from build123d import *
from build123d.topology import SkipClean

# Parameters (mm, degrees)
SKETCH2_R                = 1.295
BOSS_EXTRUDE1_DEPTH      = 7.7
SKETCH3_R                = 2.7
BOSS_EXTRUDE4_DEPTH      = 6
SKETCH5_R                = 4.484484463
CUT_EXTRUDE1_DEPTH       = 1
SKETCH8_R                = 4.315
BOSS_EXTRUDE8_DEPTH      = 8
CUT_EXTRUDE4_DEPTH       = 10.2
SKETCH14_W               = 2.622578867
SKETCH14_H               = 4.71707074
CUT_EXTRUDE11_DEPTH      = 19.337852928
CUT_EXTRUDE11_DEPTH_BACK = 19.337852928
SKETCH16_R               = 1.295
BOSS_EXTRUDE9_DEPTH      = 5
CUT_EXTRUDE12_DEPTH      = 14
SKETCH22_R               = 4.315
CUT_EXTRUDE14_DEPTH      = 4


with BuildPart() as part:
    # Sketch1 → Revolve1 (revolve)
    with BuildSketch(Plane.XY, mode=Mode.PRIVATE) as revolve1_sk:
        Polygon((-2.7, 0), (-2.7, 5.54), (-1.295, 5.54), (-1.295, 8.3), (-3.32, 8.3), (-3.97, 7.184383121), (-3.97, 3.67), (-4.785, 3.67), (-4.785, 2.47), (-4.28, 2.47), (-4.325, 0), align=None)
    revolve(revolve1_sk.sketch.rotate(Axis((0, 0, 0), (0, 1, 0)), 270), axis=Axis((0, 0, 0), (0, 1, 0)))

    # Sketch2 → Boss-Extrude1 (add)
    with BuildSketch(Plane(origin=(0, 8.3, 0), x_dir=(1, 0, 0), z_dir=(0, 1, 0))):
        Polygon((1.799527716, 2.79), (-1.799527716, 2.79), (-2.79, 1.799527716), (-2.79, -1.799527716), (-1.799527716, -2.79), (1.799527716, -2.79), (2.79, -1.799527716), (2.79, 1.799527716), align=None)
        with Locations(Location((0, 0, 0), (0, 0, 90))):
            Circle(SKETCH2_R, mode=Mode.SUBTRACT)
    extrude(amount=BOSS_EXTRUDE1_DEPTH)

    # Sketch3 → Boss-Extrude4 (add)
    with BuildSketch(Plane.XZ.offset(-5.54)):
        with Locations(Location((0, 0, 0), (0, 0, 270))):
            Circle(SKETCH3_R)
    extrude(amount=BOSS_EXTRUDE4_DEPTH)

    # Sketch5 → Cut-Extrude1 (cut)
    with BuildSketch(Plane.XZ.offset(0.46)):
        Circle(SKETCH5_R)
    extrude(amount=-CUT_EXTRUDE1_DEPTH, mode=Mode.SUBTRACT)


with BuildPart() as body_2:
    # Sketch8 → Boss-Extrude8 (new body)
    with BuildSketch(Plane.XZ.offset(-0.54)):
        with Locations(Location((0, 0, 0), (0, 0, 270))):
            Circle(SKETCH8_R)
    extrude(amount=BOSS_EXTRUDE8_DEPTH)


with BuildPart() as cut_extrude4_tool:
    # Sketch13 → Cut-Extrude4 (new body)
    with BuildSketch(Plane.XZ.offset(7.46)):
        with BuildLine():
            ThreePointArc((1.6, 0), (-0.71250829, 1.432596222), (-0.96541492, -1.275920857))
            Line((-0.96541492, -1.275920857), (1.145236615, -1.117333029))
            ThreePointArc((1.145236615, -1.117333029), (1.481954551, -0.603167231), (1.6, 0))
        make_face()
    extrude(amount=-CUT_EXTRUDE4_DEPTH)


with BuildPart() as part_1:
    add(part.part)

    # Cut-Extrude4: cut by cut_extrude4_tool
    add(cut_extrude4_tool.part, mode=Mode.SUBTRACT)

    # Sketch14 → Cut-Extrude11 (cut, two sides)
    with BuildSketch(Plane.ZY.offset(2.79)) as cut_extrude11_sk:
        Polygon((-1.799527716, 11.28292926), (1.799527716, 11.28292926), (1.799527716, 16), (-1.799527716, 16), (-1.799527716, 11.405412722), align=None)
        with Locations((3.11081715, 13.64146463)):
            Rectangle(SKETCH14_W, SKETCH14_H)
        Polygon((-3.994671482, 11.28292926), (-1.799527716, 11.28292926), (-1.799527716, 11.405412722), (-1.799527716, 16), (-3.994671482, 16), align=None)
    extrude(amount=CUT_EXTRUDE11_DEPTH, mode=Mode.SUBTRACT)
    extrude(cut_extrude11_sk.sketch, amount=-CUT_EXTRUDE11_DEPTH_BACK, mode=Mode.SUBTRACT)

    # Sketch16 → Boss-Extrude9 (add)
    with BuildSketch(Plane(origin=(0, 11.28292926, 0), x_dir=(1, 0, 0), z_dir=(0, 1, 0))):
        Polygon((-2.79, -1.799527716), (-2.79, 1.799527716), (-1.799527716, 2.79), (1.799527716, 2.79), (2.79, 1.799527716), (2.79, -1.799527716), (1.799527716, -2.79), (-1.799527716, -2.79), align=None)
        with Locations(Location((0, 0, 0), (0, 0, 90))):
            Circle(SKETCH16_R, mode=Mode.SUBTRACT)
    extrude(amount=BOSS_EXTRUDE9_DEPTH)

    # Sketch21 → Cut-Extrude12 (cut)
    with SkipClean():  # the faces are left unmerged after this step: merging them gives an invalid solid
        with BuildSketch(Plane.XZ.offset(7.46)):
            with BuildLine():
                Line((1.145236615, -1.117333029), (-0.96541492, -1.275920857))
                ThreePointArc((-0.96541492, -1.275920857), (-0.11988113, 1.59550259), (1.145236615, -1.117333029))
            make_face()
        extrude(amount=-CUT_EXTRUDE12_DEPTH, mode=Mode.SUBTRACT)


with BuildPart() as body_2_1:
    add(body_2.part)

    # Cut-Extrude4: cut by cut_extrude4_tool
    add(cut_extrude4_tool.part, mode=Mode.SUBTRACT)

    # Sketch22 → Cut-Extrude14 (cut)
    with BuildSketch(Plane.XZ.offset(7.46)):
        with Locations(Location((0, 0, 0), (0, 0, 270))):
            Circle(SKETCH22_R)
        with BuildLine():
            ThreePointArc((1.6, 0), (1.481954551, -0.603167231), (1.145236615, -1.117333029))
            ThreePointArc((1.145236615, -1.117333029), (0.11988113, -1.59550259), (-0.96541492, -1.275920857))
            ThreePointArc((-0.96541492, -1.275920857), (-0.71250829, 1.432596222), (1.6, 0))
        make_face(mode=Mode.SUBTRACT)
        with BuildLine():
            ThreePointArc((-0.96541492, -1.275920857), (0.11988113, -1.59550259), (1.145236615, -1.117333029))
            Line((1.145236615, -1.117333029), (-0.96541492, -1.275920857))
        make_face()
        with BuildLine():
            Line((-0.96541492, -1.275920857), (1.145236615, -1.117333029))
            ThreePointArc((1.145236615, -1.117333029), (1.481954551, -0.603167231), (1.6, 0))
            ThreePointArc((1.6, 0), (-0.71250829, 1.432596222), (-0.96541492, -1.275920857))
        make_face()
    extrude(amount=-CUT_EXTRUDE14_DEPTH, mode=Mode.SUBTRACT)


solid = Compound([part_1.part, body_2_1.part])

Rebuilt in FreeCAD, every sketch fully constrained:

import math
import FreeCAD as App
import Part
import Sketcher
from FreeCAD import Vector
Q = App.Units.Quantity

doc = App.newDocument("Part")
body = doc.addObject("PartDesign::Body", "Body")

# Sketch on XY plane
sketch1 = body.newObject("Sketcher::SketchObject", "Sketch")
sketch1.AttachmentSupport = (doc.getObject("XY_Plane"), [""])
sketch1.MapMode = "FlatFace"
sketch1.addGeometry([
    Part.LineSegment(Vector(-2.7, 0, 0), Vector(-2.7, 5.54, 0)),  # 0
    Part.LineSegment(Vector(-2.7, 5.54, 0), Vector(-1.295, 5.54, 0)),  # 1
    Part.LineSegment(Vector(-1.295, 5.54, 0), Vector(-1.295, 8.3, 0)),  # 2
    Part.LineSegment(Vector(-1.295, 8.3, 0), Vector(-3.32, 8.3, 0)),  # 3
    Part.LineSegment(Vector(-3.32, 8.3, 0), Vector(-3.97, 7.184383, 0)),  # 4
    Part.LineSegment(Vector(-3.97, 7.184383, 0), Vector(-3.97, 3.67, 0)),  # 5
    Part.LineSegment(Vector(-3.97, 3.67, 0), Vector(-4.785, 3.67, 0)),  # 6
    Part.LineSegment(Vector(-4.785, 3.67, 0), Vector(-4.785, 2.47, 0)),  # 7
    Part.LineSegment(Vector(-4.785, 2.47, 0), Vector(-4.28, 2.47, 0)),  # 8
    Part.LineSegment(Vector(-4.28, 2.47, 0), Vector(-4.325, 0, 0)),  # 9
    Part.LineSegment(Vector(-4.325, 0, 0), Vector(-2.7, 0, 0)),  # 10
], False)
sketch1.addConstraint([
    Sketcher.Constraint("Coincident", 0, 2, 1, 1),
    Sketcher.Constraint("Coincident", 1, 2, 2, 1),
    Sketcher.Constraint("Coincident", 2, 2, 3, 1),
    Sketcher.Constraint("Coincident", 3, 2, 4, 1),
    Sketcher.Constraint("Coincident", 4, 2, 5, 1),
    Sketcher.Constraint("Coincident", 5, 2, 6, 1),
    Sketcher.Constraint("Coincident", 6, 2, 7, 1),
    Sketcher.Constraint("Coincident", 7, 2, 8, 1),
    Sketcher.Constraint("Coincident", 8, 2, 9, 1),
    Sketcher.Constraint("Coincident", 9, 2, 10, 1),
    Sketcher.Constraint("Coincident", 10, 2, 0, 1),
    Sketcher.Constraint("Vertical", 0),
    Sketcher.Constraint("Horizontal", 1),
    Sketcher.Constraint("Vertical", 2),
    Sketcher.Constraint("Horizontal", 3),
    Sketcher.Constraint("Vertical", 5),
    Sketcher.Constraint("Horizontal", 6),
    Sketcher.Constraint("Vertical", 7),
    Sketcher.Constraint("Horizontal", 8),
    Sketcher.Constraint("Horizontal", 10),
    Sketcher.Constraint("PointOnObject", 9, 2, -1),
    Sketcher.Constraint("DistanceY", 7, 2, 7, 1, Q("1.2 mm")),
    Sketcher.Constraint("DistanceY", 0, 1, 0, 2, Q("5.54 mm")),
    Sketcher.Constraint("DistanceY", 2, 1, 2, 2, Q("2.76 mm")),
    Sketcher.Constraint("DistanceX", 0, 2, -1, 1, Q("2.7 mm")),
    Sketcher.Constraint("DistanceX", 1, 1, 1, 2, Q("1.405 mm")),
    Sketcher.Constraint("DistanceX", 3, 2, 3, 1, Q("2.025 mm")),
    Sketcher.Constraint("DistanceX", 6, 2, 6, 1, Q("0.815 mm")),
    Sketcher.Constraint("DistanceX", 8, 1, 8, 2, Q("0.505 mm")),
    Sketcher.Constraint("DistanceX", 10, 1, 10, 2, Q("1.625 mm")),
    Sketcher.Constraint("DistanceX", 4, 2, -1, 1, Q("3.97 mm")),
    Sketcher.Constraint("DistanceY", -1, 1, 5, 2, Q("3.67 mm")),
    Sketcher.Constraint("DistanceY", 5, 2, 5, 1, Q("3.514383 mm")),
])
revolution = body.newObject("PartDesign::Revolution", "Revolution")
revolution.Profile = sketch1
revolution.ReferenceAxis = (sketch1, ["V_Axis"])
revolution.Angle = 360

# Sketch on XZ plane
sketch2 = body.newObject("Sketcher::SketchObject", "Sketch001")
sketch2.AttachmentSupport = (doc.getObject("XZ_Plane"), [""])
sketch2.MapMode = "FlatFace"
sketch2.AttachmentOffset = App.Placement(Vector(0, 0, -8.3), App.Rotation())
sketch2.addGeometry([
    Part.LineSegment(Vector(1.799528, -2.79, 0), Vector(-1.799528, -2.79, 0)),  # 0
    Part.LineSegment(Vector(-1.799528, -2.79, 0), Vector(-2.79, -1.799528, 0)),  # 1
    Part.LineSegment(Vector(-2.79, -1.799528, 0), Vector(-2.79, 1.799528, 0)),  # 2
    Part.LineSegment(Vector(-2.79, 1.799528, 0), Vector(-1.799528, 2.79, 0)),  # 3
    Part.LineSegment(Vector(-1.799528, 2.79, 0), Vector(1.799528, 2.79, 0)),  # 4
    Part.LineSegment(Vector(1.799528, 2.79, 0), Vector(2.79, 1.799528, 0)),  # 5
    Part.LineSegment(Vector(2.79, 1.799528, 0), Vector(2.79, -1.799528, 0)),  # 6
    Part.LineSegment(Vector(2.79, -1.799528, 0), Vector(1.799528, -2.79, 0)),  # 7
    Part.Circle(Vector(0, 0, 0), Vector(0, 0, 1), 1.295),  # 8
], False)
sketch2.addConstraint([
    Sketcher.Constraint("Coincident", 0, 2, 1, 1),
    Sketcher.Constraint("Coincident", 1, 2, 2, 1),
    Sketcher.Constraint("Coincident", 2, 2, 3, 1),
    Sketcher.Constraint("Coincident", 3, 2, 4, 1),
    Sketcher.Constraint("Coincident", 4, 2, 5, 1),
    Sketcher.Constraint("Coincident", 5, 2, 6, 1),
    Sketcher.Constraint("Coincident", 6, 2, 7, 1),
    Sketcher.Constraint("Coincident", 7, 2, 0, 1),
    Sketcher.Constraint("Horizontal", 0),
    Sketcher.Constraint("Vertical", 2),
    Sketcher.Constraint("Horizontal", 4),
    Sketcher.Constraint("Vertical", 6),
    Sketcher.Constraint("Coincident", 8, 3, -1, 1),
    Sketcher.Constraint("Symmetric", 0, 2, 4, 2, -1, 1),
    Sketcher.Constraint("Symmetric", 1, 2, 5, 2, -1, 1),
    Sketcher.Constraint("Perpendicular", 1, 3),
    Sketcher.Constraint("Perpendicular", 5, 7),
    Sketcher.Constraint("Horizontal", 2, 2, 5, 2),
    Sketcher.Constraint("Horizontal", 1, 2, 6, 2),
    Sketcher.Constraint("Vertical", 0, 2, 3, 2),
    Sketcher.Constraint("Equal", 4, 2),
    Sketcher.Constraint("Diameter", 8, Q("2.59 mm")),
    Sketcher.Constraint("DistanceY", 0, 2, -1, 1, Q("2.79 mm")),
    Sketcher.Constraint("Distance", 1, Q("1.400739 mm")),
])
pad1 = body.newObject("PartDesign::Pad", "Pad")
pad1.Profile = sketch2
pad1.Length = 7.7
pad1.Reversed = True

# Sketch on XZ plane
sketch3 = body.newObject("Sketcher::SketchObject", "Sketch002")
sketch3.AttachmentSupport = (doc.getObject("XZ_Plane"), [""])
sketch3.MapMode = "FlatFace"
sketch3.AttachmentOffset = App.Placement(Vector(0, 0, -5.54), App.Rotation())
sketch3.addGeometry(Part.Circle(Vector(0, 0, 0), Vector(0, 0, 1), 2.7), False)
sketch3.addConstraint([
    Sketcher.Constraint("Coincident", 0, 3, -1, 1),
    Sketcher.Constraint("Diameter", 0, Q("5.4 mm")),
])
pad2 = body.newObject("PartDesign::Pad", "Pad001")
pad2.Profile = sketch3
pad2.Length = 6

# Sketch on XZ plane
sketch4 = body.newObject("Sketcher::SketchObject", "Sketch003")
sketch4.AttachmentSupport = (doc.getObject("XZ_Plane"), [""])
sketch4.MapMode = "FlatFace"
sketch4.AttachmentOffset = App.Placement(Vector(0, 0, 0.46), App.Rotation())
sketch4.addGeometry(Part.Circle(Vector(0, 0, 0), Vector(0, 0, 1), 4.484484), False)
sketch4.addConstraint([
    Sketcher.Constraint("Coincident", 0, 3, -1, 1),
    Sketcher.Constraint("Diameter", 0, Q("8.968969 mm")),
])
pocket1 = body.newObject("PartDesign::Pocket", "Pocket")
pocket1.Profile = sketch4
pocket1.Length = 1
body2 = doc.addObject("PartDesign::Body", "Body001")

# Sketch on XZ plane
sketch5 = body2.newObject("Sketcher::SketchObject", "Sketch004")
sketch5.AttachmentSupport = (doc.getObject("XZ_Plane001"), [""])
sketch5.MapMode = "FlatFace"
sketch5.AttachmentOffset = App.Placement(Vector(0, 0, -0.54), App.Rotation())
sketch5.addGeometry(Part.Circle(Vector(0, 0, 0), Vector(0, 0, 1), 4.315), False)
sketch5.addConstraint([
    Sketcher.Constraint("Coincident", 0, 3, -1, 1),
    Sketcher.Constraint("Diameter", 0, Q("8.63 mm")),
])
pad3 = body2.newObject("PartDesign::Pad", "Pad002")
pad3.Profile = sketch5
pad3.Length = 8
body3 = doc.addObject("PartDesign::Body", "Body002")

# Sketch on XZ plane
sketch6 = body3.newObject("Sketcher::SketchObject", "Sketch005")
sketch6.AttachmentSupport = (doc.getObject("XZ_Plane002"), [""])
sketch6.MapMode = "FlatFace"
sketch6.AttachmentOffset = App.Placement(Vector(0, 0, 7.46), App.Rotation())
sketch6.addGeometry([
    Part.ArcOfCircle(Part.Circle(Vector(0, 0, 0), Vector(0, 0, 1), 1.6), math.radians(0), math.radians(232.887331)),
    Part.LineSegment(Vector(-0.965415, -1.275921, 0), Vector(1.145237, -1.117333, 0)),
    Part.ArcOfCircle(Part.Circle(Vector(0, 0, 0), Vector(0, 0, 1), 1.6), math.radians(-44.293424), math.radians(0)),
], False)
sketch6.addConstraint([
    Sketcher.Constraint("Coincident", 0, 2, 1, 1),
    Sketcher.Constraint("Coincident", 1, 2, 2, 1),
    Sketcher.Constraint("Tangent", 2, 2, 0, 1),
    Sketcher.Constraint("Coincident", 0, 3, -1, 1),
    Sketcher.Constraint("Equal", 0, 2),
    Sketcher.Constraint("PointOnObject", 2, 2, -1),
    Sketcher.Constraint("Radius", 0, Q("1.6 mm")),
    Sketcher.Constraint("Distance", 1, Q("2.116601 mm")),
    Sketcher.Constraint("DistanceY", 0, 2, -1, 1, Q("1.275921 mm")),
])
pad4 = body3.newObject("PartDesign::Pad", "Pad003")
pad4.Profile = sketch6
pad4.Length = 10.2
pad4.Reversed = True
doc.recompute()

body4 = doc.addObject("PartDesign::Body", "Body003")
body4.BaseFeature = body3
boolean = body.newObject("PartDesign::Boolean", "Boolean")
boolean.Type = "Cut"
boolean.addObjects([body4])
doc.recompute()

# Sketch on YZ plane
sketch7 = body.newObject("Sketcher::SketchObject", "Sketch006")
sketch7.AttachmentSupport = (doc.getObject("YZ_Plane"), [""])
sketch7.MapMode = "FlatFace"
sketch7.AttachmentOffset = App.Placement(Vector(0, 0, -2.79), App.Rotation())
sketch7.addGeometry([
    Part.LineSegment(Vector(11.282929, 4.422107, 0), Vector(16, 4.422107, 0)),
    Part.LineSegment(Vector(16, 4.422107, 0), Vector(16, -3.994671, 0)),
    Part.LineSegment(Vector(16, -3.994671, 0), Vector(11.282929, -3.994671, 0)),
    Part.LineSegment(Vector(11.282929, -3.994671, 0), Vector(11.282929, 4.422107, 0)),
], False)
sketch7.addConstraint([
    Sketcher.Constraint("Coincident", 0, 2, 1, 1),
    Sketcher.Constraint("Coincident", 1, 2, 2, 1),
    Sketcher.Constraint("Coincident", 2, 2, 3, 1),
    Sketcher.Constraint("Coincident", 3, 2, 0, 1),
    Sketcher.Constraint("Horizontal", 0),
    Sketcher.Constraint("Vertical", 1),
    Sketcher.Constraint("Horizontal", 2),
    Sketcher.Constraint("Vertical", 3),
    Sketcher.Constraint("DistanceX", -1, 1, 0, 2, Q("16 mm")),
    Sketcher.Constraint("DistanceX", 0, 1, 0, 2, Q("4.717071 mm")),
    Sketcher.Constraint("DistanceY", 1, 2, 1, 1, Q("8.416778 mm")),
    Sketcher.Constraint("DistanceY", 1, 2, -1, 1, Q("3.994671 mm")),
])
pocket2 = body.newObject("PartDesign::Pocket", "Pocket001")
pocket2.Profile = sketch7
pocket2.Type = "ThroughAll"
pocket2.Midplane = True

# Sketch on XZ plane
sketch8 = body.newObject("Sketcher::SketchObject", "Sketch007")
sketch8.AttachmentSupport = (doc.getObject("XZ_Plane"), [""])
sketch8.MapMode = "FlatFace"
sketch8.AttachmentOffset = App.Placement(Vector(0, 0, -11.282929), App.Rotation())
sketch8.addGeometry([
    Part.LineSegment(Vector(-2.79, -1.799528, 0), Vector(-2.79, 1.799528, 0)),  # 0
    Part.LineSegment(Vector(-2.79, 1.799528, 0), Vector(-1.799528, 2.79, 0)),  # 1
    Part.LineSegment(Vector(-1.799528, 2.79, 0), Vector(1.799528, 2.79, 0)),  # 2
    Part.LineSegment(Vector(1.799528, 2.79, 0), Vector(2.79, 1.799528, 0)),  # 3
    Part.LineSegment(Vector(2.79, 1.799528, 0), Vector(2.79, -1.799528, 0)),  # 4
    Part.LineSegment(Vector(2.79, -1.799528, 0), Vector(1.799528, -2.79, 0)),  # 5
    Part.LineSegment(Vector(1.799528, -2.79, 0), Vector(-1.799528, -2.79, 0)),  # 6
    Part.LineSegment(Vector(-1.799528, -2.79, 0), Vector(-2.79, -1.799528, 0)),  # 7
    Part.Circle(Vector(0, 0, 0), Vector(0, 0, 1), 1.295),  # 8
], False)
sketch8.addConstraint([
    Sketcher.Constraint("Coincident", 0, 2, 1, 1),
    Sketcher.Constraint("Coincident", 1, 2, 2, 1),
    Sketcher.Constraint("Coincident", 2, 2, 3, 1),
    Sketcher.Constraint("Coincident", 3, 2, 4, 1),
    Sketcher.Constraint("Coincident", 4, 2, 5, 1),
    Sketcher.Constraint("Coincident", 5, 2, 6, 1),
    Sketcher.Constraint("Coincident", 6, 2, 7, 1),
    Sketcher.Constraint("Coincident", 7, 2, 0, 1),
    Sketcher.Constraint("Vertical", 0),
    Sketcher.Constraint("Horizontal", 2),
    Sketcher.Constraint("Vertical", 4),
    Sketcher.Constraint("Horizontal", 6),
    Sketcher.Constraint("Coincident", 8, 3, -1, 1),
    Sketcher.Constraint("Symmetric", 0, 2, 4, 2, -1, 1),
    Sketcher.Constraint("Symmetric", 1, 2, 5, 2, -1, 1),
    Sketcher.Constraint("Perpendicular", 1, 3),
    Sketcher.Constraint("Perpendicular", 5, 7),
    Sketcher.Constraint("Horizontal", 0, 2, 3, 2),
    Sketcher.Constraint("Horizontal", 4, 2, 7, 2),
    Sketcher.Constraint("Vertical", 2, 2, 5, 2),
    Sketcher.Constraint("Equal", 6, 0),
    Sketcher.Constraint("Diameter", 8, Q("2.59 mm")),
    Sketcher.Constraint("DistanceX", 0, 2, -1, 1, Q("2.79 mm")),
    Sketcher.Constraint("Distance", 1, Q("1.400739 mm")),
])
pad5 = body.newObject("PartDesign::Pad", "Pad004")
pad5.Profile = sketch8
pad5.Length = 5
pad5.Reversed = True

# Sketch on XZ plane
sketch9 = body.newObject("Sketcher::SketchObject", "Sketch008")
sketch9.AttachmentSupport = (doc.getObject("XZ_Plane"), [""])
sketch9.MapMode = "FlatFace"
sketch9.AttachmentOffset = App.Placement(Vector(0, 0, 7.46), App.Rotation())
sketch9.addGeometry([
    Part.LineSegment(Vector(-0.965415, -1.275921, 0), Vector(1.145237, -1.117333, 0)),
    Part.ArcOfCircle(Part.Circle(Vector(0, 0, 0), Vector(0, 0, 1), 1.6), math.radians(-44.293424), math.radians(232.887331)),
], False)
sketch9.addConstraint([
    Sketcher.Constraint("Coincident", 0, 1, 1, 2),
    Sketcher.Constraint("Coincident", 1, 1, 0, 2),
    Sketcher.Constraint("Coincident", 1, 3, -1, 1),
    Sketcher.Constraint("Radius", 1, Q("1.6 mm")),
    Sketcher.Constraint("Distance", 0, Q("2.116601 mm")),
    Sketcher.Constraint("DistanceY", 0, 1, -1, 1, Q("1.275921 mm")),
])
pocket3 = body.newObject("PartDesign::Pocket", "Pocket002")
pocket3.Profile = sketch9
pocket3.Length = 14
doc.recompute()

boolean2 = body2.newObject("PartDesign::Boolean", "Boolean001")
boolean2.Type = "Cut"
boolean2.addObjects([body3])

# Sketch on XZ plane
sketch10 = body2.newObject("Sketcher::SketchObject", "Sketch009")
sketch10.AttachmentSupport = (doc.getObject("XZ_Plane001"), [""])
sketch10.MapMode = "FlatFace"
sketch10.AttachmentOffset = App.Placement(Vector(0, 0, 7.46), App.Rotation())
sketch10.addGeometry(Part.Circle(Vector(0, 0, 0), Vector(0, 0, 1), 4.315), False)
sketch10.addConstraint([
    Sketcher.Constraint("Coincident", 0, 3, -1, 1),
    Sketcher.Constraint("Diameter", 0, Q("8.63 mm")),
])
pocket4 = body2.newObject("PartDesign::Pocket", "Pocket003")
pocket4.Profile = sketch10
pocket4.Length = 4

doc.recompute()
